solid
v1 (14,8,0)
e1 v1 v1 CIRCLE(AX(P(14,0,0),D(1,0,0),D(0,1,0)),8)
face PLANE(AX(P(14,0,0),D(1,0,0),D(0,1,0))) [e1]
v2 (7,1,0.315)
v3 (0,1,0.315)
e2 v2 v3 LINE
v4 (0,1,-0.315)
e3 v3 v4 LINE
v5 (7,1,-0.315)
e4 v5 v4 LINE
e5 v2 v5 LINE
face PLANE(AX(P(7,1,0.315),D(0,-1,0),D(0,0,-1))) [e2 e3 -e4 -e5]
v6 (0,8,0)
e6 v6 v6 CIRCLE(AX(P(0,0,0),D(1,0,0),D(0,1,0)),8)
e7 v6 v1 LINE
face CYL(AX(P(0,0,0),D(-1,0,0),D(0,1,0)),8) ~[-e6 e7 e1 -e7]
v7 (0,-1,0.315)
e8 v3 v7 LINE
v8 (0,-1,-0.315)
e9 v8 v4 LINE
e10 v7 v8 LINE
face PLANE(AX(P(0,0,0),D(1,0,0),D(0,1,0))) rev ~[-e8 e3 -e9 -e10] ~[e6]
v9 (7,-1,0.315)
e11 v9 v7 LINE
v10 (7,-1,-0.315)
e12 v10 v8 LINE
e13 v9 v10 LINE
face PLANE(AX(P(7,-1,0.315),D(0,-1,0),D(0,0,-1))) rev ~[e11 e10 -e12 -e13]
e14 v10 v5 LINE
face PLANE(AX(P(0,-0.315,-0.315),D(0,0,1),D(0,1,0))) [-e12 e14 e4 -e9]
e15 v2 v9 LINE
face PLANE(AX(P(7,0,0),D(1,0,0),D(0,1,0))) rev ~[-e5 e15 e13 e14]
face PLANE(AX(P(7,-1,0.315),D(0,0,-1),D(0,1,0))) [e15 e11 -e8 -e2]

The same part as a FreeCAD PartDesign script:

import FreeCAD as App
import Part
import Sketcher

V = App.Vector

doc = App.newDocument("Part")
params = doc.addObject("Spreadsheet::Sheet", "Params")
for row, (alias, value) in enumerate([
    ("sketch1_diameter", "16 mm"),
    ("pad1_length", "14 mm"),
    ("sketch2_width", "0.63 mm"),
    ("pocket1_length", "7 mm"),
    ("sketch3_width", "2 mm"),
    ("sketch3_height", "0.63 mm"),
    ("pocket2_length", "7 mm"),
], start=1):
    params.set(f"A{row}", alias)
    params.set(f"B{row}", "=" + value)
    params.setAlias(f"B{row}", alias)

body = doc.addObject("PartDesign::Body", "Body")

# Sketch on YZ plane
sketch1 = doc.addObject("Sketcher::SketchObject", "Sketch")
body.addObject(sketch1)
sketch1.AttachmentSupport = (doc.YZ_Plane, [""])
sketch1.MapMode = "FlatFace"
sketch1.addGeometry(Part.Circle(V(0, 0, 0), V(0, 0, 1), 8), False)
sketch1.addConstraint(Sketcher.Constraint("Coincident", 0, 3, -1, 1))
sketch1.addConstraint(Sketcher.Constraint("Diameter", 0, 16.0))
sketch1.setExpression("Constraints[1]", "Params.sketch1_diameter")
pad1 = doc.addObject("PartDesign::Pad", "Pad")
body.addObject(pad1)
pad1.Profile = sketch1
pad1.setExpression("Length", "Params.pad1_length")

# Sketch on YZ plane
sketch2 = doc.addObject("Sketcher::SketchObject", "Sketch001")
body.addObject(sketch2)
sketch2.AttachmentSupport = (doc.YZ_Plane, [""])
sketch2.MapMode = "FlatFace"
sketch2.addGeometry(Part.LineSegment(V(-0.3, 0.3, 0), V(-0.3, -0.3, 0)), False)
sketch2.addGeometry(Part.LineSegment(V(-0.3, -0.3, 0), V(0.3, -0.3, 0)), False)
sketch2.addGeometry(Part.LineSegment(V(0.3, -0.3, 0), V(0.3, 0.3, 0)), False)
sketch2.addGeometry(Part.LineSegment(V(0.3, 0.3, 0), V(-0.3, 0.3, 0)), False)
sketch2.addConstraint(Sketcher.Constraint("Coincident", 0, 2, 1, 1))
sketch2.addConstraint(Sketcher.Constraint("Coincident", 1, 2, 2, 1))
sketch2.addConstraint(Sketcher.Constraint("Coincident", 2, 2, 3, 1))
sketch2.addConstraint(Sketcher.Constraint("Coincident", 3, 2, 0, 1))
sketch2.addConstraint(Sketcher.Constraint("Vertical", 0))
sketch2.addConstraint(Sketcher.Constraint("Horizontal", 1))
sketch2.addConstraint(Sketcher.Constraint("Vertical", 2))
sketch2.addConstraint(Sketcher.Constraint("Horizontal", 3))
sketch2.addConstraint(Sketcher.Constraint("Symmetric", 0, 2, 2, 2, -1, 1))
sketch2.addConstraint(Sketcher.Constraint("Equal", 3, 0))
sketch2.addConstraint(Sketcher.Constraint("DistanceX", 1, 1, 1, 2, 0.63))
sketch2.setExpression("Constraints[10]", "Params.sketch2_width")
pocket1 = doc.addObject("PartDesign::Pocket", "Pocket")
body.addObject(pocket1)
pocket1.Profile = sketch2
pocket1.setExpression("Length", "Params.pocket1_length")
pocket1.Reversed = True

# Sketch on YZ plane
sketch3 = doc.addObject("Sketcher::SketchObject", "Sketch002")
body.addObject(sketch3)
sketch3.AttachmentSupport = (doc.YZ_Plane, [""])
sketch3.MapMode = "FlatFace"
sketch3.AttachmentOffset = App.Placement(V(0, 0, 7), App.Rotation())
sketch3.addGeometry(Part.LineSegment(V(-1, -0.3, 0), V(-1, 0.3, 0)), False)
sketch3.addGeometry(Part.LineSegment(V(-1, 0.3, 0), V(1, 0.3, 0)), False)
sketch3.addGeometry(Part.LineSegment(V(1, 0.3, 0), V(1, -0.3, 0)), False)
sketch3.addGeometry(Part.LineSegment(V(1, -0.3, 0), V(-1, -0.3, 0)), False)
sketch3.addConstraint(Sketcher.Constraint("Coincident", 0, 2, 1, 1))
sketch3.addConstraint(Sketcher.Constraint("Coincident", 1, 2, 2, 1))
sketch3.addConstraint(Sketcher.Constraint("Coincident", 2, 2, 3, 1))
sketch3.addConstraint(Sketcher.Constraint("Coincident", 3, 2, 0, 1))
sketch3.addConstraint(Sketcher.Constraint("Vertical", 0))
sketch3.addConstraint(Sketcher.Constraint("Horizontal", 1))
sketch3.addConstraint(Sketcher.Constraint("Vertical", 2))
sketch3.addConstraint(Sketcher.Constraint("Horizontal", 3))
sketch3.addConstraint(Sketcher.Constraint("Symmetric", 0, 2, 2, 2, -1, 1))
sketch3.addConstraint(Sketcher.Constraint("DistanceX", 1, 1, 1, 2, 2.0))
sketch3.addConstraint(Sketcher.Constraint("DistanceY", 0, 1, 0, 2, 0.63))
sketch3.setExpression("Constraints[9]", "Params.sketch3_width")
sketch3.setExpression("Constraints[10]", "Params.sketch3_height")
pocket2 = doc.addObject("PartDesign::Pocket", "Pocket001")
body.addObject(pocket2)
pocket2.Profile = sketch3
pocket2.setExpression("Length", "Params.pocket2_length")

doc.recompute()
